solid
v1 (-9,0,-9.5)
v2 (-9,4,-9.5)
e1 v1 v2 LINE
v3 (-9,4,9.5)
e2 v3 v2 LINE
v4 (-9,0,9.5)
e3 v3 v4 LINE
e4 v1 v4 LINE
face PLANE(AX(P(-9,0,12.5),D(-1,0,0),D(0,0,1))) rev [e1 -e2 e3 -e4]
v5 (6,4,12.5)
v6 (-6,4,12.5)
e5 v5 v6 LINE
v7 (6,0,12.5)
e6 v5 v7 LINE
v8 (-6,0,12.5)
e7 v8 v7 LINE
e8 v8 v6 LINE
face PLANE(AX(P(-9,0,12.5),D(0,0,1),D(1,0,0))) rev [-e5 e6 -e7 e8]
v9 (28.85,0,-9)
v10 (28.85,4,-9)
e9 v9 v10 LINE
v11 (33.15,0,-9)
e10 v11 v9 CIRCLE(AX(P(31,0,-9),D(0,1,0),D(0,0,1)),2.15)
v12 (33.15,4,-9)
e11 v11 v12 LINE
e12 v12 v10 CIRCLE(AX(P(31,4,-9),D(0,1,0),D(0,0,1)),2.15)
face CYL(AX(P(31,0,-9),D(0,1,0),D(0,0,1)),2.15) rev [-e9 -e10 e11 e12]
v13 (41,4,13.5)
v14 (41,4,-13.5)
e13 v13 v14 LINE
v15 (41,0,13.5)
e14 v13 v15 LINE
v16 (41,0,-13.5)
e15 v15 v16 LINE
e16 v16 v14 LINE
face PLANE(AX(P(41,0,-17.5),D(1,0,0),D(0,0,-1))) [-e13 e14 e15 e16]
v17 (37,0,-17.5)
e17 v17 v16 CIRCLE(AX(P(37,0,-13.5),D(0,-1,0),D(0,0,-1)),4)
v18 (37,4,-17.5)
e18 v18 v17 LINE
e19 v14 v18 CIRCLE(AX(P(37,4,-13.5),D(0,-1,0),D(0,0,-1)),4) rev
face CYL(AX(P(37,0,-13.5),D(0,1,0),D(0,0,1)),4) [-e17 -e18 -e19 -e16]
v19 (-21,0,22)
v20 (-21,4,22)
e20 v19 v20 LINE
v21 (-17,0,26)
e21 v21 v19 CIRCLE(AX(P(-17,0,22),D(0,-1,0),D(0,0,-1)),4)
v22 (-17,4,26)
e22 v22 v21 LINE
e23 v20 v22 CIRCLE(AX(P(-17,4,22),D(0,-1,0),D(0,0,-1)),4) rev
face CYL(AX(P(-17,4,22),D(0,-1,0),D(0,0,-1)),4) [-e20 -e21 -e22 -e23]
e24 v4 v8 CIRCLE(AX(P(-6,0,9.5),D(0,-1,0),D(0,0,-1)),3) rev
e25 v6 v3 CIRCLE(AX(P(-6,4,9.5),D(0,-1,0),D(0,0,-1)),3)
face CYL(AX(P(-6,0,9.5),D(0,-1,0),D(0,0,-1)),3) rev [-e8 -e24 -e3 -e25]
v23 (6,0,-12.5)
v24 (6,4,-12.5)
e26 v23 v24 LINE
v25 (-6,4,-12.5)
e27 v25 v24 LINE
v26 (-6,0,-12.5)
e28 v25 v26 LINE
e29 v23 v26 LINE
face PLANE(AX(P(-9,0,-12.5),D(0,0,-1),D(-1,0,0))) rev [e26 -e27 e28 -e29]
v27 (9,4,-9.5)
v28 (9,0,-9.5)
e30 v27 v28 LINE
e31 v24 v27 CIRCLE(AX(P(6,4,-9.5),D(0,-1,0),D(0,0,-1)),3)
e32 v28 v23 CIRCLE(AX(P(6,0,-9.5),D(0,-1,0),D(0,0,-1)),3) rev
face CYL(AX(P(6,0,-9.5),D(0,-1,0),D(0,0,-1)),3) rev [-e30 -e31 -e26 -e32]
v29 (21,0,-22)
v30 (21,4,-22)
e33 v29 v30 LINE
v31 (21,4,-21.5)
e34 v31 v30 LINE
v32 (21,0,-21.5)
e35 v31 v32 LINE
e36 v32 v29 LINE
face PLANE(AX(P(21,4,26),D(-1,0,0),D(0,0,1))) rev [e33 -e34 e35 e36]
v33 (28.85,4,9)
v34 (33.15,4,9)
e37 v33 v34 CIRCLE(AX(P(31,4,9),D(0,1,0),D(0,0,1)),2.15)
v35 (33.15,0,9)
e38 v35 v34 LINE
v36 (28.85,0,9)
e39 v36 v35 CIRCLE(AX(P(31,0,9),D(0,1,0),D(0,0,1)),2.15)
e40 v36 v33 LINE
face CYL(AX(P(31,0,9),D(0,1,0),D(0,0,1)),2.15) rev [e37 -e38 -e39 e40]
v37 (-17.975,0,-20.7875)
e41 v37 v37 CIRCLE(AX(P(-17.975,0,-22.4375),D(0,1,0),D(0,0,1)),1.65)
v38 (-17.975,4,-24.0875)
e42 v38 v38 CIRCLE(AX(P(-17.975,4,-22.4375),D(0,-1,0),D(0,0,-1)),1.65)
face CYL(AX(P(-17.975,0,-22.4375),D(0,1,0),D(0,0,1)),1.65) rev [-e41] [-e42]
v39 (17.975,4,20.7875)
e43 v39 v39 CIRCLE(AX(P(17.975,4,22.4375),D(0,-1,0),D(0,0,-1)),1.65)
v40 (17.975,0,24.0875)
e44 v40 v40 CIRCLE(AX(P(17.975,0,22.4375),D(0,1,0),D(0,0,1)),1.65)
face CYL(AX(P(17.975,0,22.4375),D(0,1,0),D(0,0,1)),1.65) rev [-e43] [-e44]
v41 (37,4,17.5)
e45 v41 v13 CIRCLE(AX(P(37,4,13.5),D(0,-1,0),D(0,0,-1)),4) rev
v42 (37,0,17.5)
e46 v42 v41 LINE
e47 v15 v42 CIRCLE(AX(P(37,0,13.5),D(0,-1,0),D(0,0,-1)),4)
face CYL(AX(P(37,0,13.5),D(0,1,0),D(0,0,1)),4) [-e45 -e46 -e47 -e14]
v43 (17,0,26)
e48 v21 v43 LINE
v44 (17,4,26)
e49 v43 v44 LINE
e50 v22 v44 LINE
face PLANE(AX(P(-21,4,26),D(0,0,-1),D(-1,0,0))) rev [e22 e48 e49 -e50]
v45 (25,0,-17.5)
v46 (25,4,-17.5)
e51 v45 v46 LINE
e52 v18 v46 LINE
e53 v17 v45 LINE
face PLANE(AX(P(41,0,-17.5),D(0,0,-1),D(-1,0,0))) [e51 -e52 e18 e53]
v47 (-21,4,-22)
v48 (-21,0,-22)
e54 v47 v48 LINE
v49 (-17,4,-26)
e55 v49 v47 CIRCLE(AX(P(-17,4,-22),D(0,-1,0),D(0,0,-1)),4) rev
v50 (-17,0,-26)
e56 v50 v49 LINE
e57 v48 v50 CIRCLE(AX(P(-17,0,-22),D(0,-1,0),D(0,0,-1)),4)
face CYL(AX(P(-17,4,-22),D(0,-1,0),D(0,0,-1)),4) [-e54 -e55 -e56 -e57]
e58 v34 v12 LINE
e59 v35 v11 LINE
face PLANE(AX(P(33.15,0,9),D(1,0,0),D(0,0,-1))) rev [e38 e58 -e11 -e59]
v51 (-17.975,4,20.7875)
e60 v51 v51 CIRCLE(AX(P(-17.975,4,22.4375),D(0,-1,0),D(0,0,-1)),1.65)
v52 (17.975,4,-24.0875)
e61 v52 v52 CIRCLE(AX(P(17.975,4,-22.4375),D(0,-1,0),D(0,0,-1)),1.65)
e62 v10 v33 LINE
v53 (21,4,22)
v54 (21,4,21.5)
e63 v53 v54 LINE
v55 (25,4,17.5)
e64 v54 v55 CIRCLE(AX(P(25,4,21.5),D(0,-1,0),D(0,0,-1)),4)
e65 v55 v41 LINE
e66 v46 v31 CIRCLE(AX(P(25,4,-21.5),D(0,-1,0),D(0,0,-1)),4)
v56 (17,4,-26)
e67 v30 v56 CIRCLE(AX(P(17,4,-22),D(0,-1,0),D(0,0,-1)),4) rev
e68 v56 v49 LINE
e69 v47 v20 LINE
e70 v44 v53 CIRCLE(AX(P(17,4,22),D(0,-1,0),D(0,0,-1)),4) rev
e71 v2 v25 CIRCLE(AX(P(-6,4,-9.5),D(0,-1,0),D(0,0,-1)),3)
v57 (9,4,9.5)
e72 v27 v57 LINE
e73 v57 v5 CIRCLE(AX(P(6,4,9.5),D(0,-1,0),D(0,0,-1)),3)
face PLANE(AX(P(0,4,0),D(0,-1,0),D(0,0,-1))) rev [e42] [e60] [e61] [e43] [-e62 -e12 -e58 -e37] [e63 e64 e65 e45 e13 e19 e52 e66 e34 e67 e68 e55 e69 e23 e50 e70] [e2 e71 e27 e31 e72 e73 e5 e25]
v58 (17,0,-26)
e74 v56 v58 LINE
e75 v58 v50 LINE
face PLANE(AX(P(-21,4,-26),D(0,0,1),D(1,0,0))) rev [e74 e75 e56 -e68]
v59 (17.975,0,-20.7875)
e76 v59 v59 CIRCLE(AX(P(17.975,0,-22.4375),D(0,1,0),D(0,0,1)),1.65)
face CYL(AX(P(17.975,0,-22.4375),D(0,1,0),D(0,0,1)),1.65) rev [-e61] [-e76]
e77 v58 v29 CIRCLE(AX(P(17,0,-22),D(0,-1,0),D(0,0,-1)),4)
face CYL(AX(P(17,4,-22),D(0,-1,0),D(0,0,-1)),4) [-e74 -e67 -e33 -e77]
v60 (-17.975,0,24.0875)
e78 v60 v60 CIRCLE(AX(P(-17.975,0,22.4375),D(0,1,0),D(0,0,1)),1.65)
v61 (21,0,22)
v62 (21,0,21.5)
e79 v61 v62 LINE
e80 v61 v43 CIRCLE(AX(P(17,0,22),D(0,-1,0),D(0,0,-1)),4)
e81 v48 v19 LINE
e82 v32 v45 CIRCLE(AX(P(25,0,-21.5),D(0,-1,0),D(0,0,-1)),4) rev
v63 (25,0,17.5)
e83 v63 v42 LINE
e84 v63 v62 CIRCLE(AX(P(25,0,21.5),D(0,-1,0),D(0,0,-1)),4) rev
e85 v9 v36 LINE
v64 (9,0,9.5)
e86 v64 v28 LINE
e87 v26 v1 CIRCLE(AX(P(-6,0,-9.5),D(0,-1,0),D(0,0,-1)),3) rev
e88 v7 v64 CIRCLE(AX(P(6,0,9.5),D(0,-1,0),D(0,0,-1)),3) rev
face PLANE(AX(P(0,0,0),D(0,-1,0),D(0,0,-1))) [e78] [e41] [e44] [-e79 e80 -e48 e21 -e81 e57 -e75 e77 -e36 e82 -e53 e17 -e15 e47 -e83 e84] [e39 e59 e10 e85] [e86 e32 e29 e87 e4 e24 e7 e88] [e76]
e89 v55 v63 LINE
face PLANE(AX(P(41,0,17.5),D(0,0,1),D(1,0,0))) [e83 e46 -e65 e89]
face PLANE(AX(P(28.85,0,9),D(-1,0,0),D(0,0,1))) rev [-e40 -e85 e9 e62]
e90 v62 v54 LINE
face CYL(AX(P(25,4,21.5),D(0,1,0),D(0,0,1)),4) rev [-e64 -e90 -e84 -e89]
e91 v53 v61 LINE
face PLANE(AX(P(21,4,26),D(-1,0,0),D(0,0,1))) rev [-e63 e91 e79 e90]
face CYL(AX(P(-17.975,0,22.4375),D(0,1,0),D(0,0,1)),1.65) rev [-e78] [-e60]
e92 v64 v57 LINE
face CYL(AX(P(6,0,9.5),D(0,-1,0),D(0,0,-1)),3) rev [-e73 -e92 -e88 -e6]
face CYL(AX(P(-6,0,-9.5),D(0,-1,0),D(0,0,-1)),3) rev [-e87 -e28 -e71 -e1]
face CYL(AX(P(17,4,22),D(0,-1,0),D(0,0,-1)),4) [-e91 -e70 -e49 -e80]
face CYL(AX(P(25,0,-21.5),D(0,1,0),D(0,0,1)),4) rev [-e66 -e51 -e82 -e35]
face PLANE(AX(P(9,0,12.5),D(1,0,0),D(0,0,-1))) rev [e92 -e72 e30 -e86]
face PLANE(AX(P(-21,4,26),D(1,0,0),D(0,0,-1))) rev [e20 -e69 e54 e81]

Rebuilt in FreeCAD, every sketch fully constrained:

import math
import FreeCAD as App
import Part
import Sketcher

V = App.Vector
Q = App.Units.Quantity


def edges_at(feature, points):
    """Names of the edges that pass closest to the given points."""
    edges = feature.Shape.Edges
    near = lambda p: min(range(len(edges)), key=lambda i: edges[i].distToShape(Part.Vertex(*p))[0])
    return sorted({f"Edge{near(p) + 1}" for p in points})


def add_polygon(sketch, points):
    """Adds a closed chain of lines whose ends are joined by coincident constraints."""
    first, n = sketch.GeometryCount, len(points)
    for a, b in zip(points, points[1:] + points[:1]):
        sketch.addGeometry(Part.LineSegment(App.Vector(*a, 0), App.Vector(*b, 0)), False)
    for i in range(n):
        sketch.addConstraint(Sketcher.Constraint("Coincident", first + i, 2, first + (i + 1) % n, 1))

doc = App.newDocument("Part")
body = doc.addObject("PartDesign::Body", "Body")

# Sketch on XZ plane
sketch1 = body.newObject("Sketcher::SketchObject", "Sketch")
sketch1.AttachmentSupport = (doc.getObject("XZ_Plane"), [""])
sketch1.MapMode = "FlatFace"
add_polygon(sketch1, [(-21, -26), (-21, 26), (21, 26), (21, -26)])  # lines 0-3
sketch1.addConstraint([
    Sketcher.Constraint("Vertical", 0),
    Sketcher.Constraint("Horizontal", 1),
    Sketcher.Constraint("Vertical", 2),
    Sketcher.Constraint("Horizontal", 3),
    Sketcher.Constraint("Symmetric", 0, 2, 2, 2, -1, 1),
    Sketcher.Constraint("DistanceX", 1, 1, 1, 2, Q("42 mm")),
    Sketcher.Constraint("DistanceY", 0, 1, 0, 2, Q("52 mm")),
])
pad1 = body.newObject("PartDesign::Pad", "Pad")
pad1.Profile = sketch1
pad1.Length = 4
pad1.Reversed = True

# Sketch on XZ plane
sketch2 = body.newObject("Sketcher::SketchObject", "Sketch001")
sketch2.AttachmentSupport = (doc.getObject("XZ_Plane"), [""])
sketch2.MapMode = "FlatFace"
sketch2.AttachmentOffset = App.Placement(V(0, 0, -4), App.Rotation())
sketch2.addGeometry([
    Part.Circle(V(-18, -22.4, 0), V(0, 0, 1), 1.6),
    Part.Circle(V(18, -22.4, 0), V(0, 0, 1), 1.6),
    Part.Circle(V(18, 22.4, 0), V(0, 0, 1), 1.6),
    Part.Circle(V(-18, 22.4, 0), V(0, 0, 1), 1.6),
], False)
sketch2.addConstraint([
    Sketcher.Constraint("Equal", 0, 1),
    Sketcher.Constraint("Equal", 1, 2),
    Sketcher.Constraint("Equal", 2, 3),
    Sketcher.Constraint("Symmetric", 0, 3, 2, 3, -1, 1),
    Sketcher.Constraint("Symmetric", 1, 3, 3, 3, -1, 1),
    Sketcher.Constraint("Symmetric", 0, 3, 1, 3, -2),
    Sketcher.Constraint("Diameter", 0, Q("3.3 mm")),
    Sketcher.Constraint("DistanceX", 0, 3, 1, 3, Q("35.95 mm")),
    Sketcher.Constraint("DistanceY", 1, 3, 2, 3, Q("44.875 mm")),
])
pocket1 = body.newObject("PartDesign::Pocket", "Pocket")
pocket1.Profile = sketch2
pocket1.Type = "ThroughAll"
pocket1.Midplane = True

# Sketch on XZ plane
sketch3 = body.newObject("Sketcher::SketchObject", "Sketch002")
sketch3.AttachmentSupport = (doc.getObject("XZ_Plane"), [""])
sketch3.MapMode = "FlatFace"
sketch3.AttachmentOffset = App.Placement(V(0, 0, -4), App.Rotation())
add_polygon(sketch3, [(21, -18), (21, 18), (41, 18), (41, -18)])  # lines 0-3
sketch3.addConstraint([
    Sketcher.Constraint("Vertical", 0),
    Sketcher.Constraint("Horizontal", 1),
    Sketcher.Constraint("Vertical", 2),
    Sketcher.Constraint("Horizontal", 3),
    Sketcher.Constraint("DistanceX", 1, 1, 1, 2, Q("20 mm")),
    Sketcher.Constraint("DistanceY", 0, 1, 0, 2, Q("35 mm")),
    Sketcher.Constraint("DistanceX", -1, 1, 0, 2, Q("21 mm")),
    Sketcher.Constraint("DistanceY", -1, 1, 0, 2, Q("17.5 mm")),
])
pad2 = body.newObject("PartDesign::Pad", "Pad001")
pad2.Profile = sketch3
pad2.Length = 4
doc.recompute()

fillet = body.newObject("PartDesign::Fillet", "Fillet")
fillet.Base = (pad2, edges_at(pad2, [
    (21, 2, 17.5),
    (21, 2, -17.5),
    (41, 2, -17.5),
    (41, 2, 17.5),
    (21, 2, 26),
    (-21, 2, 26),
    (-21, 2, -26),
    (21, 2, -26),
]))
fillet.Radius = 4

# Sketch on XZ plane
sketch4 = body.newObject("Sketcher::SketchObject", "Sketch003")
sketch4.AttachmentSupport = (doc.getObject("XZ_Plane"), [""])
sketch4.MapMode = "FlatFace"
sketch4.AttachmentOffset = App.Placement(V(0, 0, -4), App.Rotation())
sketch4.addGeometry([
    Part.LineSegment(V(28.9, -9, 0), V(28.9, 9, 0)),
    Part.ArcOfCircle(Part.Circle(V(31, 9, 0), V(0, 0, 1), 2.1), math.radians(0), math.radians(180)),
    Part.LineSegment(V(33.1, 9, 0), V(33.1, -9, 0)),
    Part.ArcOfCircle(Part.Circle(V(31, -9, 0), V(0, 0, 1), 2.1), math.radians(180), math.radians(360)),
], False)
sketch4.addConstraint([
    Sketcher.Constraint("Tangent", 0, 2, 1, 2),
    Sketcher.Constraint("Tangent", 1, 1, 2, 1),
    Sketcher.Constraint("Tangent", 2, 2, 3, 2),
    Sketcher.Constraint("Tangent", 3, 1, 0, 1),
    Sketcher.Constraint("Vertical", 0),
    Sketcher.Constraint("Vertical", 2),
    Sketcher.Constraint("DistanceY", 0, 1, 0, 2, Q("18 mm")),
    Sketcher.Constraint("Radius", 1, Q("2.15 mm")),
    Sketcher.Constraint("DistanceX", -1, 1, 1, 3, Q("31 mm")),
    Sketcher.Constraint("DistanceY", -1, 1, 1, 3, Q("9 mm")),
])
pocket2 = body.newObject("PartDesign::Pocket", "Pocket001")
pocket2.Profile = sketch4
pocket2.Type = "ThroughAll"
pocket2.Midplane = True

# Sketch on XZ plane
sketch5 = body.newObject("Sketcher::SketchObject", "Sketch004")
sketch5.AttachmentSupport = (doc.getObject("XZ_Plane"), [""])
sketch5.MapMode = "FlatFace"
sketch5.AttachmentOffset = App.Placement(V(0, 0, -4), App.Rotation())
add_polygon(sketch5, [(-9, -12), (-9, 12), (9, 12), (9, -12)])  # lines 0-3
sketch5.addConstraint([
    Sketcher.Constraint("Vertical", 0),
    Sketcher.Constraint("Horizontal", 1),
    Sketcher.Constraint("Vertical", 2),
    Sketcher.Constraint("Horizontal", 3),
    Sketcher.Constraint("Symmetric", 0, 2, 2, 2, -1, 1),
    Sketcher.Constraint("DistanceX", 1, 1, 1, 2, Q("18 mm")),
    Sketcher.Constraint("DistanceY", 0, 1, 0, 2, Q("25 mm")),
])
pocket3 = body.newObject("PartDesign::Pocket", "Pocket002")
pocket3.Profile = sketch5
pocket3.Type = "ThroughAll"
pocket3.Midplane = True
doc.recompute()

fillet2 = body.newObject("PartDesign::Fillet", "Fillet001")
fillet2.Base = (pocket3, edges_at(pocket3, [
    (9, 2, -12.5),
    (9, 2, 12.5),
    (-9, 2, 12.5),
    (-9, 2, -12.5),
]))
fillet2.Radius = 3

doc.recompute()
